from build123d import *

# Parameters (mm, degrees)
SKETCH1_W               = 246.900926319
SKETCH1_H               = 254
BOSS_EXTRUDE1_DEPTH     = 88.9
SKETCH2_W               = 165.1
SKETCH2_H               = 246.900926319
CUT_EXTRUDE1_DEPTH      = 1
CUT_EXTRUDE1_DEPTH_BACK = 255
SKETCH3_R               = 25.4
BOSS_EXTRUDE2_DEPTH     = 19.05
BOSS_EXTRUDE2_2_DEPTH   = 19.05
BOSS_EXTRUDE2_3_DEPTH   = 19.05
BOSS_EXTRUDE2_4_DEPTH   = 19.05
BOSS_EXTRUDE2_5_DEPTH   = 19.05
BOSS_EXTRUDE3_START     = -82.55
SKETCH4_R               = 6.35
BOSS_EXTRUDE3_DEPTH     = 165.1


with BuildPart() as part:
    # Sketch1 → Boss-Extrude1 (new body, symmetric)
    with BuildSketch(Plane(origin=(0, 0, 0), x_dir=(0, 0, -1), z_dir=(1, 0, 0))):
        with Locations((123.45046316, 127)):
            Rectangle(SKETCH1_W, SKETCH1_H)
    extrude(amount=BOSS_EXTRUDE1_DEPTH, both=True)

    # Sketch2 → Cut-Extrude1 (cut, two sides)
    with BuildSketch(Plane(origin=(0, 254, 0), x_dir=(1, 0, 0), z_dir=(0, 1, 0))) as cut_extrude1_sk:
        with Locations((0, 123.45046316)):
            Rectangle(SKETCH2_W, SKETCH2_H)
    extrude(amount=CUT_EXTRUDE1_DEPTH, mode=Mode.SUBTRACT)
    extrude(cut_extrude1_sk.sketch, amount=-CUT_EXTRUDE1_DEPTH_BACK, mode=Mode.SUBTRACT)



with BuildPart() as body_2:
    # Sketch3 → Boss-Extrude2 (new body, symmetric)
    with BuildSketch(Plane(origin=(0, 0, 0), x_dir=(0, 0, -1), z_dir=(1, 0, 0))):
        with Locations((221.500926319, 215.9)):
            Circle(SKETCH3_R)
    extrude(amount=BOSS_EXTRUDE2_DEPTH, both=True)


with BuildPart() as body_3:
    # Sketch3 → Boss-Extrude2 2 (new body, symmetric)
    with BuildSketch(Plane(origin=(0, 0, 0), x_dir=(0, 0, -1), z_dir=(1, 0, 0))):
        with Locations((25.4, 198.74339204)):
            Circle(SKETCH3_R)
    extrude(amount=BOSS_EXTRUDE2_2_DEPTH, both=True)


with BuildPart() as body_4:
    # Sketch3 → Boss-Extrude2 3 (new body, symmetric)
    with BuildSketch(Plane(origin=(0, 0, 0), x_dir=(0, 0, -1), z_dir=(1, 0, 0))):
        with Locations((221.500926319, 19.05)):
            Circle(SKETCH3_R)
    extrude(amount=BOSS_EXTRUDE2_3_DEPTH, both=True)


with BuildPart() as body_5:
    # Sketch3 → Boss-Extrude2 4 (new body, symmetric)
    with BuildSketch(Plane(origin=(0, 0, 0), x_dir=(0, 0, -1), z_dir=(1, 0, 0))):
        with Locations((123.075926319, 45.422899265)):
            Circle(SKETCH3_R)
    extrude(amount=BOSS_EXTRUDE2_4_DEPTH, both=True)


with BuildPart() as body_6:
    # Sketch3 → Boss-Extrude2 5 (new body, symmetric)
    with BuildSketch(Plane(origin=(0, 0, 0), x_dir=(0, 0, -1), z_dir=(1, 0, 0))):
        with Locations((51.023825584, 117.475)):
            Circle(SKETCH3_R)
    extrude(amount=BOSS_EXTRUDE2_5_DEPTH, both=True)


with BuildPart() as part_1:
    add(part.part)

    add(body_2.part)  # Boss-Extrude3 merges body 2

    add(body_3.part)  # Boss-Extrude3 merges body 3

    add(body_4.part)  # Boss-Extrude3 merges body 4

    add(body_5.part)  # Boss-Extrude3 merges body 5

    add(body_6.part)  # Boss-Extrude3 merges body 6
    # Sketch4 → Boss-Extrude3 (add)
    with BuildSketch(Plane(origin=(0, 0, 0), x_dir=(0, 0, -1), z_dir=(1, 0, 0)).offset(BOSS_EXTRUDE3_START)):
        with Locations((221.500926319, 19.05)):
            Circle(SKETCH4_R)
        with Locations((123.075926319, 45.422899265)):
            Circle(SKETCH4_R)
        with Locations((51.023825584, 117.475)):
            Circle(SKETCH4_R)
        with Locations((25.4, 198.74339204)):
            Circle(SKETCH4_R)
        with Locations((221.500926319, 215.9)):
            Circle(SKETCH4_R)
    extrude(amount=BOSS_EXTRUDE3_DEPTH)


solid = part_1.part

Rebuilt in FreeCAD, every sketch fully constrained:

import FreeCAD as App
import Part
import Sketcher

V = App.Vector
Q = App.Units.Quantity

doc = App.newDocument("Part")
body = doc.addObject("PartDesign::Body", "Body")
body.AllowCompound = True

# Sketch on YZ plane
sketch1 = doc.addObject("Sketcher::SketchObject", "Sketch")
body.addObject(sketch1)
sketch1.AttachmentSupport = (doc.YZ_Plane, [""])
sketch1.MapMode = "FlatFace"
sketch1.addGeometry(Part.LineSegment(V(254, 0, 0), V(0, 0, 0)), False)
sketch1.addGeometry(Part.LineSegment(V(0, 0, 0), V(0, -246.900926, 0)), False)
sketch1.addGeometry(Part.LineSegment(V(0, -246.900926, 0), V(254, -246.900926, 0)), False)
sketch1.addGeometry(Part.LineSegment(V(254, -246.900926, 0), V(254, 0, 0)), False)
sketch1.addConstraint(Sketcher.Constraint("Coincident", 0, 2, 1, 1))
sketch1.addConstraint(Sketcher.Constraint("Coincident", 1, 2, 2, 1))
sketch1.addConstraint(Sketcher.Constraint("Coincident", 2, 2, 3, 1))
sketch1.addConstraint(Sketcher.Constraint("Coincident", 3, 2, 0, 1))
sketch1.addConstraint(Sketcher.Constraint("Horizontal", 0))
sketch1.addConstraint(Sketcher.Constraint("Vertical", 1))
sketch1.addConstraint(Sketcher.Constraint("Horizontal", 2))
sketch1.addConstraint(Sketcher.Constraint("Vertical", 3))
sketch1.addConstraint(Sketcher.Constraint("Coincident", 0, 2, -1, 1))
sketch1.addConstraint(Sketcher.Constraint("DistanceX", 0, 2, 0, 1, Q("10 in")))
sketch1.addConstraint(Sketcher.Constraint("DistanceY", 1, 2, 1, 1, Q("246.900926 mm")))
pad1 = doc.addObject("PartDesign::Pad", "Pad")
body.addObject(pad1)
pad1.Profile = sketch1
pad1.Length = Q("7 in")
pad1.Midplane = True

# Sketch on XZ plane
sketch2 = doc.addObject("Sketcher::SketchObject", "Sketch001")
body.addObject(sketch2)
sketch2.AttachmentSupport = (doc.XZ_Plane, [""])
sketch2.MapMode = "FlatFace"
sketch2.AttachmentOffset = App.Placement(V(0, 0, -10 * 25.4), App.Rotation())
sketch2.addGeometry(Part.LineSegment(V(-82.55, -246.900926, 0), V(-82.55, 0, 0)), False)
sketch2.addGeometry(Part.LineSegment(V(-82.55, 0, 0), V(82.55, 0, 0)), False)
sketch2.addGeometry(Part.LineSegment(V(82.55, 0, 0), V(82.55, -246.900926, 0)), False)
sketch2.addGeometry(Part.LineSegment(V(82.55, -246.900926, 0), V(-82.55, -246.900926, 0)), False)
sketch2.addConstraint(Sketcher.Constraint("Coincident", 0, 2, 1, 1))
sketch2.addConstraint(Sketcher.Constraint("Coincident", 1, 2, 2, 1))
sketch2.addConstraint(Sketcher.Constraint("Coincident", 2, 2, 3, 1))
sketch2.addConstraint(Sketcher.Constraint("Coincident", 3, 2, 0, 1))
sketch2.addConstraint(Sketcher.Constraint("Vertical", 0))
sketch2.addConstraint(Sketcher.Constraint("Horizontal", 1))
sketch2.addConstraint(Sketcher.Constraint("Vertical", 2))
sketch2.addConstraint(Sketcher.Constraint("Horizontal", 3))
sketch2.addConstraint(Sketcher.Constraint("Symmetric", 0, 2, 1, 2, -1, 1))
sketch2.addConstraint(Sketcher.Constraint("DistanceX", 1, 1, 1, 2, Q("6.5 in")))
sketch2.addConstraint(Sketcher.Constraint("DistanceY", 0, 1, 0, 2, Q("246.900926 mm")))
pocket1 = doc.addObject("PartDesign::Pocket", "Pocket")
body.addObject(pocket1)
pocket1.Profile = sketch2
pocket1.Type = "ThroughAll"
pocket1.Midplane = True
body2 = doc.addObject("PartDesign::Body", "Body001")

# Sketch on YZ plane
sketch3 = doc.addObject("Sketcher::SketchObject", "Sketch002")
body2.addObject(sketch3)
sketch3.AttachmentSupport = (doc.getObject("YZ_Plane001"), [""])
sketch3.MapMode = "FlatFace"
sketch3.addGeometry(Part.Circle(V(215.9, -221.500926, 0), V(0, 0, 1), 25.4), False)
sketch3.addConstraint(Sketcher.Constraint("Diameter", 0, Q("2 in")))
sketch3.addConstraint(Sketcher.Constraint("DistanceX", -1, 1, 0, 3, Q("8.5 in")))
sketch3.addConstraint(Sketcher.Constraint("DistanceY", 0, 3, -1, 1, Q("221.500926 mm")))
pad2 = doc.addObject("PartDesign::Pad", "Pad001")
body2.addObject(pad2)
pad2.Profile = sketch3
pad2.Length = Q("1.5 in")
pad2.Midplane = True
body3 = doc.addObject("PartDesign::Body", "Body002")

# Sketch on YZ plane
sketch4 = doc.addObject("Sketcher::SketchObject", "Sketch003")
body3.addObject(sketch4)
sketch4.AttachmentSupport = (doc.getObject("YZ_Plane002"), [""])
sketch4.MapMode = "FlatFace"
sketch4.addGeometry(Part.Circle(V(198.743392, -25.4, 0), V(0, 0, 1), 25.4), False)
sketch4.addConstraint(Sketcher.Constraint("Diameter", 0, Q("2 in")))
sketch4.addConstraint(Sketcher.Constraint("DistanceY", 0, 3, -1, 1, Q("1 in")))
sketch4.addConstraint(Sketcher.Constraint("DistanceX", -1, 1, 0, 3, Q("198.743392 mm")))
pad3 = doc.addObject("PartDesign::Pad", "Pad002")
body3.addObject(pad3)
pad3.Profile = sketch4
pad3.Length = Q("1.5 in")
pad3.Midplane = True
body4 = doc.addObject("PartDesign::Body", "Body003")

# Sketch on YZ plane
sketch5 = doc.addObject("Sketcher::SketchObject", "Sketch004")
body4.addObject(sketch5)
sketch5.AttachmentSupport = (doc.getObject("YZ_Plane003"), [""])
sketch5.MapMode = "FlatFace"
sketch5.addGeometry(Part.Circle(V(19.05, -221.500926, 0), V(0, 0, 1), 25.4), False)
sketch5.addConstraint(Sketcher.Constraint("Diameter", 0, Q("2 in")))
sketch5.addConstraint(Sketcher.Constraint("DistanceX", -1, 1, 0, 3, Q("0.75 in")))
sketch5.addConstraint(Sketcher.Constraint("DistanceY", 0, 3, -1, 1, Q("221.500926 mm")))
pad4 = doc.addObject("PartDesign::Pad", "Pad003")
body4.addObject(pad4)
pad4.Profile = sketch5
pad4.Length = Q("1.5 in")
pad4.Midplane = True
body5 = doc.addObject("PartDesign::Body", "Body004")

# Sketch on YZ plane
sketch6 = doc.addObject("Sketcher::SketchObject", "Sketch005")
body5.addObject(sketch6)
sketch6.AttachmentSupport = (doc.getObject("YZ_Plane004"), [""])
sketch6.MapMode = "FlatFace"
sketch6.addGeometry(Part.Circle(V(45.422899, -123.075926, 0), V(0, 0, 1), 25.4), False)
sketch6.addConstraint(Sketcher.Constraint("Diameter", 0, Q("2 in")))
sketch6.addConstraint(Sketcher.Constraint("DistanceX", -1, 1, 0, 3, Q("45.422899 mm")))
sketch6.addConstraint(Sketcher.Constraint("DistanceY", 0, 3, -1, 1, Q("123.075926 mm")))
pad5 = doc.addObject("PartDesign::Pad", "Pad004")
body5.addObject(pad5)
pad5.Profile = sketch6
pad5.Length = Q("1.5 in")
pad5.Midplane = True
body6 = doc.addObject("PartDesign::Body", "Body005")

# Sketch on YZ plane
sketch7 = doc.addObject("Sketcher::SketchObject", "Sketch006")
body6.addObject(sketch7)
sketch7.AttachmentSupport = (doc.getObject("YZ_Plane005"), [""])
sketch7.MapMode = "FlatFace"
sketch7.addGeometry(Part.Circle(V(117.475, -51.023826, 0), V(0, 0, 1), 25.4), False)
sketch7.addConstraint(Sketcher.Constraint("Diameter", 0, Q("2 in")))
sketch7.addConstraint(Sketcher.Constraint("DistanceX", -1, 1, 0, 3, Q("4.625 in")))
sketch7.addConstraint(Sketcher.Constraint("DistanceY", 0, 3, -1, 1, Q("51.023826 mm")))
pad6 = doc.addObject("PartDesign::Pad", "Pad005")
body6.addObject(pad6)
pad6.Profile = sketch7
pad6.Length = Q("1.5 in")
pad6.Midplane = True
body.AllowCompound = True
doc.recompute()

boolean = doc.addObject("PartDesign::Boolean", "Boolean")
body.addObject(boolean)
boolean.Type = "Fuse"
boolean.addObjects([body2])
doc.recompute()

boolean2 = doc.addObject("PartDesign::Boolean", "Boolean001")
body.addObject(boolean2)
boolean2.Type = "Fuse"
boolean2.addObjects([body3])
doc.recompute()

boolean3 = doc.addObject("PartDesign::Boolean", "Boolean002")
body.addObject(boolean3)
boolean3.Type = "Fuse"
boolean3.addObjects([body4])
doc.recompute()

boolean4 = doc.addObject("PartDesign::Boolean", "Boolean003")
body.addObject(boolean4)
boolean4.Type = "Fuse"
boolean4.addObjects([body5])
doc.recompute()

boolean5 = doc.addObject("PartDesign::Boolean", "Boolean004")
body.addObject(boolean5)
boolean5.Type = "Fuse"
boolean5.addObjects([body6])

# Sketch on YZ plane
sketch8 = doc.addObject("Sketcher::SketchObject", "Sketch007")
body.addObject(sketch8)
sketch8.AttachmentSupport = (doc.YZ_Plane, [""])
sketch8.MapMode = "FlatFace"
sketch8.AttachmentOffset = App.Placement(V(0, 0, -3.25 * 25.4), App.Rotation())
sketch8.addGeometry(Part.Circle(V(19.05, -221.500926, 0), V(0, 0, 1), 6.35), False)
sketch8.addGeometry(Part.Circle(V(45.422899, -123.075926, 0), V(0, 0, 1), 6.35), False)
sketch8.addGeometry(Part.Circle(V(117.475, -51.023826, 0), V(0, 0, 1), 6.35), False)
sketch8.addGeometry(Part.Circle(V(198.743392, -25.4, 0), V(0, 0, 1), 6.35), False)
sketch8.addGeometry(Part.Circle(V(215.9, -221.500926, 0), V(0, 0, 1), 6.35), False)
sketch8.addConstraint(Sketcher.Constraint("Equal", 0, 1))
sketch8.addConstraint(Sketcher.Constraint("Equal", 1, 2))
sketch8.addConstraint(Sketcher.Constraint("Equal", 2, 3))
sketch8.addConstraint(Sketcher.Constraint("Equal", 3, 4))
sketch8.addConstraint(Sketcher.Constraint("Horizontal", 0, 3, 4, 3))
sketch8.addConstraint(Sketcher.Constraint("Diameter", 0, Q("0.5 in")))
sketch8.addConstraint(Sketcher.Constraint("DistanceY", 3, 3, -1, 1, Q("1 in")))
sketch8.addConstraint(Sketcher.Constraint("DistanceX", -1, 1, 4, 3, Q("8.5 in")))
sketch8.addConstraint(Sketcher.Constraint("DistanceX", -1, 1, 0, 3, Q("0.75 in")))
sketch8.addConstraint(Sketcher.Constraint("DistanceX", -1, 1, 2, 3, Q("4.625 in")))
sketch8.addConstraint(Sketcher.Constraint("DistanceY", 0, 3, 1, 3, Q("3.875 in")))
sketch8.addConstraint(Sketcher.Constraint("DistanceX", -1, 1, 1, 3, Q("45.422899 mm")))
sketch8.addConstraint(Sketcher.Constraint("DistanceY", 1, 3, 2, 3, Q("72.052101 mm")))
sketch8.addConstraint(Sketcher.Constraint("DistanceY", 0, 3, -1, 1, Q("221.500926 mm")))
sketch8.addConstraint(Sketcher.Constraint("DistanceX", -1, 1, 3, 3, Q("198.743392 mm")))
pad7 = doc.addObject("PartDesign::Pad", "Pad006")
body.addObject(pad7)
pad7.Profile = sketch8
pad7.Length = Q("6.5 in")

doc.recompute()
